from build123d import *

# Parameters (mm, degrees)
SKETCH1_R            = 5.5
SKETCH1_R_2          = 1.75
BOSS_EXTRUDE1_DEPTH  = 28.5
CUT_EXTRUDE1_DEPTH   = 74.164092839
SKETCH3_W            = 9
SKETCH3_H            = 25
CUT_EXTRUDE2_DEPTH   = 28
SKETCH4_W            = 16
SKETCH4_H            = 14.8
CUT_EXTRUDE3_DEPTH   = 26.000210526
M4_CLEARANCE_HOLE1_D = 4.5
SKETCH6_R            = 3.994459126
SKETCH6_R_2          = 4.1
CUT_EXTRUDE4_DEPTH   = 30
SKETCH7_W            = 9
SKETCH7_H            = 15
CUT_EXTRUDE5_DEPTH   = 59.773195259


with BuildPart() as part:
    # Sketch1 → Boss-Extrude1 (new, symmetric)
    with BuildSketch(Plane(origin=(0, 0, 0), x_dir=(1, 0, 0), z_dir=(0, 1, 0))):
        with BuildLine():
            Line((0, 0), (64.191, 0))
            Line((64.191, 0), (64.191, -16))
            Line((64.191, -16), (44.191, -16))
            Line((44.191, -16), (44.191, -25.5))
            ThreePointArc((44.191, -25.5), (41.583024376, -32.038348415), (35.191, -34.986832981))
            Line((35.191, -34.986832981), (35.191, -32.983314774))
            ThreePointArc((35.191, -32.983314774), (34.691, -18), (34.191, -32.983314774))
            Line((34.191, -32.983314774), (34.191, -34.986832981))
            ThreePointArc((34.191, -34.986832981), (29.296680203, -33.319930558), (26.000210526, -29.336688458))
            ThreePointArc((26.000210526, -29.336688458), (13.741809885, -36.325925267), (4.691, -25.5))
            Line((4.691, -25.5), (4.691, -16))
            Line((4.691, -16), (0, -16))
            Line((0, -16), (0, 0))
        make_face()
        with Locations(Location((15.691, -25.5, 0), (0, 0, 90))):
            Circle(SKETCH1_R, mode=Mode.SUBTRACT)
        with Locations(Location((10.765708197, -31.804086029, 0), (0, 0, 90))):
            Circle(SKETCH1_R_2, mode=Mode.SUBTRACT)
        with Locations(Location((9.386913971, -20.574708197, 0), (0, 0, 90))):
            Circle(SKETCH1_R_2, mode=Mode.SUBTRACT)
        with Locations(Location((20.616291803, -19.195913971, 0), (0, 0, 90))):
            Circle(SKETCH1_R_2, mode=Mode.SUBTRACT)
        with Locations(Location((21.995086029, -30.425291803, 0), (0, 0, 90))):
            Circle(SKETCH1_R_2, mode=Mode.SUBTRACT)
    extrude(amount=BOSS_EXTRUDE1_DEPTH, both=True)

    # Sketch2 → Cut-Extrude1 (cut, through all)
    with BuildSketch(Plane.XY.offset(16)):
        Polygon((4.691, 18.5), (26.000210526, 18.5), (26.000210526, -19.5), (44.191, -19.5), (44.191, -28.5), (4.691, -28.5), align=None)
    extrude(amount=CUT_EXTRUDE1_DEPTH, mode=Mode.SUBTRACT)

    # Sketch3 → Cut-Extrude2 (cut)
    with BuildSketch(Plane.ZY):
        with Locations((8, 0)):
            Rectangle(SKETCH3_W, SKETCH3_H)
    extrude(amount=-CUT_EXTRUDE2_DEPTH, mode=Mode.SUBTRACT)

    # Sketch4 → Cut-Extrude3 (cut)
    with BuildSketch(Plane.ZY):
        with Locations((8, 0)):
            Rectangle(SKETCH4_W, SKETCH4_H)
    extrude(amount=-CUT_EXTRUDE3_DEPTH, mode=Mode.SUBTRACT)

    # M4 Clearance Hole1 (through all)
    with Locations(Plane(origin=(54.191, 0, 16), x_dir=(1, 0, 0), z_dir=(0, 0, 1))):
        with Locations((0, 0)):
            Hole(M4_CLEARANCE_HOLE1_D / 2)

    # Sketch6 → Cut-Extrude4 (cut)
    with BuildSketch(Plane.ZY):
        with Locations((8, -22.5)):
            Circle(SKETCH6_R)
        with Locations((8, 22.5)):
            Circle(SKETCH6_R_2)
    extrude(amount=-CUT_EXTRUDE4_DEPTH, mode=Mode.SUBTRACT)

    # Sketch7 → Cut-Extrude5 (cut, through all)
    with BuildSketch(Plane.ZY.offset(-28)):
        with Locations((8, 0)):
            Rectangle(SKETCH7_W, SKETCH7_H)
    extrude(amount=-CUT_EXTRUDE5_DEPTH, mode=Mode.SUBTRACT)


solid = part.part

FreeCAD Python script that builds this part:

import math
import FreeCAD as App
import Part
import Sketcher
Q = App.Units.Quantity

doc = App.newDocument("Part")
body = doc.addObject("PartDesign::Body", "Body")

sketch1 = body.newObject("Sketcher::SketchObject", "Sketch")
sketch1.AttachmentSupport = (doc.getObject("XZ_Plane"), [""])
sketch1.MapMode = "FlatFace"
sketch1.addGeometry([
    Part.LineSegment(App.Vector(64.191, 0, 0), App.Vector(0, 0, 0)),
    Part.LineSegment(App.Vector(0, 0, 0), App.Vector(0, 16, 0)),
    Part.LineSegment(App.Vector(0, 16, 0), App.Vector(4.691, 16, 0)),
    Part.LineSegment(App.Vector(4.691, 16, 0), App.Vector(4.691, 25.5, 0)),
    Part.ArcOfCircle(Part.Circle(App.Vector(15.691, 25.5, 0), App.Vector(0, 0, 1), 11), math.radians(20.413315), math.radians(180)),
    Part.ArcOfCircle(Part.Circle(App.Vector(34.691, 25.5, 0), App.Vector(0, 0, 1), 9.5), math.radians(93.016961), math.radians(156.18017)),
    Part.LineSegment(App.Vector(34.191, 34.986833, 0), App.Vector(34.191, 32.983315, 0)),
    Part.ArcOfCircle(Part.Circle(App.Vector(34.691, 25.5, 0), App.Vector(0, 0, 1), 7.5), math.radians(93.822554), math.radians(446.177446)),
    Part.LineSegment(App.Vector(35.191, 32.983315, 0), App.Vector(35.191, 34.986833, 0)),
    Part.ArcOfCircle(Part.Circle(App.Vector(34.691, 25.5, 0), App.Vector(0, 0, 1), 9.5), math.radians(0), math.radians(86.983039)),
    Part.LineSegment(App.Vector(44.191, 25.5, 0), App.Vector(44.191, 16, 0)),
    Part.LineSegment(App.Vector(44.191, 16, 0), App.Vector(64.191, 16, 0)),
    Part.LineSegment(App.Vector(64.191, 16, 0), App.Vector(64.191, 0, 0)),
    Part.Circle(App.Vector(21.995086, 30.425292, 0), App.Vector(0, 0, 1), 1.75),
    Part.Circle(App.Vector(10.765708, 31.804086, 0), App.Vector(0, 0, 1), 1.75),
    Part.Circle(App.Vector(15.691, 25.5, 0), App.Vector(0, 0, 1), 5.5),
    Part.Circle(App.Vector(20.616292, 19.195914, 0), App.Vector(0, 0, 1), 1.75),
    Part.Circle(App.Vector(9.386914, 20.574708, 0), App.Vector(0, 0, 1), 1.75),
], False)
sketch1.addConstraint([
    Sketcher.Constraint("Coincident", 0, 2, 1, 1),
    Sketcher.Constraint("Coincident", 1, 2, 2, 1),
    Sketcher.Constraint("Coincident", 2, 2, 3, 1),
    Sketcher.Constraint("Tangent", 3, 2, 4, 2),
    Sketcher.Constraint("Coincident", 4, 1, 5, 2),
    Sketcher.Constraint("Coincident", 5, 1, 6, 1),
    Sketcher.Constraint("Coincident", 6, 2, 7, 1),
    Sketcher.Constraint("Coincident", 7, 2, 8, 1),
    Sketcher.Constraint("Coincident", 8, 2, 9, 2),
    Sketcher.Constraint("Tangent", 9, 1, 10, 1),
    Sketcher.Constraint("Coincident", 10, 2, 11, 1),
    Sketcher.Constraint("Coincident", 11, 2, 12, 1),
    Sketcher.Constraint("Coincident", 12, 2, 0, 1),
    Sketcher.Constraint("Horizontal", 0),
    Sketcher.Constraint("Vertical", 1),
    Sketcher.Constraint("Horizontal", 2),
    Sketcher.Constraint("Vertical", 3),
    Sketcher.Constraint("Vertical", 6),
    Sketcher.Constraint("Vertical", 8),
    Sketcher.Constraint("Vertical", 10),
    Sketcher.Constraint("Horizontal", 11),
    Sketcher.Constraint("Vertical", 12),
    Sketcher.Constraint("Coincident", 0, 2, -1, 1),
    Sketcher.Constraint("Coincident", 7, 3, 5, 3),
    Sketcher.Constraint("Coincident", 9, 3, 5, 3),
    Sketcher.Constraint("Coincident", 15, 3, 4, 3),
    Sketcher.Constraint("Equal", 5, 9),
    Sketcher.Constraint("Equal", 13, 14),
    Sketcher.Constraint("Equal", 14, 16),
    Sketcher.Constraint("Equal", 16, 17),
    Sketcher.Constraint("Horizontal", 4, 3, 5, 3),
    Sketcher.Constraint("Horizontal", 6, 2, 7, 2),
    Sketcher.Constraint("Horizontal", 2, 2, 10, 2),
    Sketcher.Constraint("Diameter", 15, Q("11 mm")),
    Sketcher.Constraint("Radius", 4, Q("11 mm")),
    Sketcher.Constraint("Diameter", 13, Q("3.5 mm")),
    Sketcher.Constraint("Radius", 5, Q("9.5 mm")),
    Sketcher.Constraint("Radius", 7, Q("7.5 mm")),
    Sketcher.Constraint("DistanceX", 11, 1, 11, 2, Q("20 mm")),
    Sketcher.Constraint("DistanceY", 1, 1, 1, 2, Q("16 mm")),
    Sketcher.Constraint("DistanceY", 3, 1, 3, 2, Q("9.5 mm")),
    Sketcher.Constraint("DistanceX", 4, 3, 5, 3, Q("19 mm")),
    Sketcher.Constraint("DistanceX", 6, 2, 7, 2, Q("1 mm")),
    Sketcher.Constraint("DistanceX", 0, 2, 0, 1, Q("64.191 mm")),
    Sketcher.Constraint("DistanceY", -1, 1, 13, 3, Q("30.425292 mm")),
    Sketcher.Constraint("DistanceX", -1, 1, 14, 3, Q("10.765708 mm")),
    Sketcher.Constraint("DistanceX", -1, 1, 16, 3, Q("20.616292 mm")),
    Sketcher.Constraint("DistanceY", -1, 1, 17, 3, Q("20.574708 mm")),
    Sketcher.Constraint("DistanceX", -1, 1, 13, 3, Q("21.995086 mm")),
    Sketcher.Constraint("DistanceY", -1, 1, 14, 3, Q("31.804086 mm")),
    Sketcher.Constraint("DistanceY", -1, 1, 16, 3, Q("19.195914 mm")),
    Sketcher.Constraint("DistanceX", -1, 1, 17, 3, Q("9.386914 mm")),
])
pad1 = body.newObject("PartDesign::Pad", "Pad")
pad1.Profile = sketch1
pad1.Length = 57
pad1.Midplane = True

sketch2 = body.newObject("Sketcher::SketchObject", "Sketch001")
sketch2.AttachmentSupport = (doc.getObject("XY_Plane"), [""])
sketch2.MapMode = "FlatFace"
sketch2.AttachmentOffset = App.Placement(App.Vector(0, 0, 16), App.Rotation())
sketch2.addGeometry([
    Part.LineSegment(App.Vector(26.000211, 18.5, 0), App.Vector(4.691, 18.5, 0)),
    Part.LineSegment(App.Vector(4.691, 18.5, 0), App.Vector(4.691, -28.5, 0)),
    Part.LineSegment(App.Vector(4.691, -28.5, 0), App.Vector(44.191, -28.5, 0)),
    Part.LineSegment(App.Vector(44.191, -28.5, 0), App.Vector(44.191, -19.5, 0)),
    Part.LineSegment(App.Vector(44.191, -19.5, 0), App.Vector(26.000211, -19.5, 0)),
    Part.LineSegment(App.Vector(26.000211, -19.5, 0), App.Vector(26.000211, 18.5, 0)),
], False)
sketch2.addConstraint([
    Sketcher.Constraint("Coincident", 0, 2, 1, 1),
    Sketcher.Constraint("Coincident", 1, 2, 2, 1),
    Sketcher.Constraint("Coincident", 2, 2, 3, 1),
    Sketcher.Constraint("Coincident", 3, 2, 4, 1),
    Sketcher.Constraint("Coincident", 4, 2, 5, 1),
    Sketcher.Constraint("Coincident", 5, 2, 0, 1),
    Sketcher.Constraint("Horizontal", 0),
    Sketcher.Constraint("Vertical", 1),
    Sketcher.Constraint("Horizontal", 2),
    Sketcher.Constraint("Vertical", 3),
    Sketcher.Constraint("Horizontal", 4),
    Sketcher.Constraint("Vertical", 5),
    Sketcher.Constraint("DistanceY", 1, 2, 1, 1, Q("47 mm")),
    Sketcher.Constraint("DistanceY", 3, 1, 3, 2, Q("9 mm")),
    Sketcher.Constraint("DistanceX", 2, 1, 2, 2, Q("39.5 mm")),
    Sketcher.Constraint("DistanceY", -1, 1, 0, 2, Q("18.5 mm")),
    Sketcher.Constraint("DistanceX", -1, 1, 0, 2, Q("4.691 mm")),
    Sketcher.Constraint("DistanceX", 0, 2, 0, 1, Q("21.309211 mm")),
])
pocket1 = body.newObject("PartDesign::Pocket", "Pocket")
pocket1.Profile = sketch2
pocket1.Type = "ThroughAll"
pocket1.Reversed = True

sketch3 = body.newObject("Sketcher::SketchObject", "Sketch002")
sketch3.AttachmentSupport = (doc.getObject("YZ_Plane"), [""])
sketch3.MapMode = "FlatFace"
sketch3.addGeometry([
    Part.LineSegment(App.Vector(12.5, 3.5, 0), App.Vector(-12.5, 3.5, 0)),
    Part.LineSegment(App.Vector(-12.5, 3.5, 0), App.Vector(-12.5, 12.5, 0)),
    Part.LineSegment(App.Vector(-12.5, 12.5, 0), App.Vector(12.5, 12.5, 0)),
    Part.LineSegment(App.Vector(12.5, 12.5, 0), App.Vector(12.5, 3.5, 0)),
], False)
sketch3.addConstraint([
    Sketcher.Constraint("Coincident", 0, 2, 1, 1),
    Sketcher.Constraint("Coincident", 1, 2, 2, 1),
    Sketcher.Constraint("Coincident", 2, 2, 3, 1),
    Sketcher.Constraint("Coincident", 3, 2, 0, 1),
    Sketcher.Constraint("Horizontal", 0),
    Sketcher.Constraint("Vertical", 1),
    Sketcher.Constraint("Horizontal", 2),
    Sketcher.Constraint("Vertical", 3),
    Sketcher.Constraint("DistanceX", 0, 2, 0, 1, Q("25 mm")),
    Sketcher.Constraint("DistanceY", 1, 1, 1, 2, Q("9 mm")),
    Sketcher.Constraint("DistanceX", 0, 2, -1, 1, Q("12.5 mm")),
    Sketcher.Constraint("DistanceY", -1, 1, 0, 2, Q("3.5 mm")),
])
pocket2 = body.newObject("PartDesign::Pocket", "Pocket001")
pocket2.Profile = sketch3
pocket2.Length = 28
pocket2.Reversed = True

sketch4 = body.newObject("Sketcher::SketchObject", "Sketch003")
sketch4.AttachmentSupport = (doc.getObject("YZ_Plane"), [""])
sketch4.MapMode = "FlatFace"
sketch4.addGeometry([
    Part.LineSegment(App.Vector(7.4, 0, 0), App.Vector(-7.4, 0, 0)),
    Part.LineSegment(App.Vector(-7.4, 0, 0), App.Vector(-7.4, 16, 0)),
    Part.LineSegment(App.Vector(-7.4, 16, 0), App.Vector(7.4, 16, 0)),
    Part.LineSegment(App.Vector(7.4, 16, 0), App.Vector(7.4, 0, 0)),
], False)
sketch4.addConstraint([
    Sketcher.Constraint("Coincident", 0, 2, 1, 1),
    Sketcher.Constraint("Coincident", 1, 2, 2, 1),
    Sketcher.Constraint("Coincident", 2, 2, 3, 1),
    Sketcher.Constraint("Coincident", 3, 2, 0, 1),
    Sketcher.Constraint("Horizontal", 0),
    Sketcher.Constraint("Vertical", 1),
    Sketcher.Constraint("Horizontal", 2),
    Sketcher.Constraint("Vertical", 3),
    Sketcher.Constraint("Symmetric", 0, 2, 3, 2, -1, 1),
    Sketcher.Constraint("DistanceY", 1, 1, 1, 2, Q("16 mm")),
    Sketcher.Constraint("DistanceX", 0, 2, 0, 1, Q("14.8 mm")),
])
pocket3 = body.newObject("PartDesign::Pocket", "Pocket002")
pocket3.Profile = sketch4
pocket3.Length = 26.000211
pocket3.Reversed = True

sketch5 = body.newObject("Sketcher::SketchObject", "Sketch004")
sketch5.AttachmentSupport = (doc.getObject("XY_Plane"), [""])
sketch5.MapMode = "FlatFace"
sketch5.AttachmentOffset = App.Placement(App.Vector(0, 0, 16), App.Rotation())
sketch5.addGeometry(Part.Circle(App.Vector(54.191, 0, 0), App.Vector(0, 0, 1), 2.25), False)
sketch5.addConstraint([
    Sketcher.Constraint("PointOnObject", 0, 3, -1),
    Sketcher.Constraint("Diameter", 0, Q("4.5 mm")),
    Sketcher.Constraint("DistanceX", -1, 1, 0, 3, Q("54.191 mm")),
])
doc.recompute()
hole = body.newObject("PartDesign::Hole", "Hole")
hole.Profile = sketch5
hole.ThreadType = "None"
hole.Diameter = 4.5
hole.DepthType = "ThroughAll"

sketch6 = body.newObject("Sketcher::SketchObject", "Sketch005")
sketch6.AttachmentSupport = (doc.getObject("YZ_Plane"), [""])
sketch6.MapMode = "FlatFace"
sketch6.addGeometry([
    Part.Circle(App.Vector(-22.5, 8, 0), App.Vector(0, 0, 1), 3.994459),
    Part.Circle(App.Vector(22.5, 8, 0), App.Vector(0, 0, 1), 4.1),
], False)
sketch6.addConstraint([
    Sketcher.Constraint("Symmetric", 0, 3, 1, 3, -2),
    Sketcher.Constraint("Diameter", 1, Q("8.2 mm")),
    Sketcher.Constraint("DistanceY", -1, 1, 0, 3, Q("8 mm")),
    Sketcher.Constraint("DistanceX", 0, 3, 1, 3, Q("45 mm")),
    Sketcher.Constraint("Diameter", 0, Q("7.988918 mm")),
])
pocket4 = body.newObject("PartDesign::Pocket", "Pocket003")
pocket4.Profile = sketch6
pocket4.Length = 30
pocket4.Reversed = True

sketch7 = body.newObject("Sketcher::SketchObject", "Sketch006")
sketch7.AttachmentSupport = (doc.getObject("YZ_Plane"), [""])
sketch7.MapMode = "FlatFace"
sketch7.AttachmentOffset = App.Placement(App.Vector(0, 0, 28), App.Rotation())
sketch7.addGeometry([
    Part.LineSegment(App.Vector(7.5, 3.5, 0), App.Vector(-7.5, 3.5, 0)),
    Part.LineSegment(App.Vector(-7.5, 3.5, 0), App.Vector(-7.5, 12.5, 0)),
    Part.LineSegment(App.Vector(-7.5, 12.5, 0), App.Vector(7.5, 12.5, 0)),
    Part.LineSegment(App.Vector(7.5, 12.5, 0), App.Vector(7.5, 3.5, 0)),
], False)
sketch7.addConstraint([
    Sketcher.Constraint("Coincident", 0, 2, 1, 1),
    Sketcher.Constraint("Coincident", 1, 2, 2, 1),
    Sketcher.Constraint("Coincident", 2, 2, 3, 1),
    Sketcher.Constraint("Coincident", 3, 2, 0, 1),
    Sketcher.Constraint("Horizontal", 0),
    Sketcher.Constraint("Vertical", 1),
    Sketcher.Constraint("Horizontal", 2),
    Sketcher.Constraint("Vertical", 3),
    Sketcher.Constraint("DistanceX", 0, 2, 0, 1, Q("15 mm")),
    Sketcher.Constraint("DistanceY", 1, 1, 1, 2, Q("9 mm")),
    Sketcher.Constraint("DistanceX", 0, 2, -1, 1, Q("7.5 mm")),
    Sketcher.Constraint("DistanceY", -1, 1, 0, 2, Q("3.5 mm")),
])
pocket5 = body.newObject("PartDesign::Pocket", "Pocket004")
pocket5.Profile = sketch7
pocket5.Type = "ThroughAll"
pocket5.Reversed = True

doc.recompute()
